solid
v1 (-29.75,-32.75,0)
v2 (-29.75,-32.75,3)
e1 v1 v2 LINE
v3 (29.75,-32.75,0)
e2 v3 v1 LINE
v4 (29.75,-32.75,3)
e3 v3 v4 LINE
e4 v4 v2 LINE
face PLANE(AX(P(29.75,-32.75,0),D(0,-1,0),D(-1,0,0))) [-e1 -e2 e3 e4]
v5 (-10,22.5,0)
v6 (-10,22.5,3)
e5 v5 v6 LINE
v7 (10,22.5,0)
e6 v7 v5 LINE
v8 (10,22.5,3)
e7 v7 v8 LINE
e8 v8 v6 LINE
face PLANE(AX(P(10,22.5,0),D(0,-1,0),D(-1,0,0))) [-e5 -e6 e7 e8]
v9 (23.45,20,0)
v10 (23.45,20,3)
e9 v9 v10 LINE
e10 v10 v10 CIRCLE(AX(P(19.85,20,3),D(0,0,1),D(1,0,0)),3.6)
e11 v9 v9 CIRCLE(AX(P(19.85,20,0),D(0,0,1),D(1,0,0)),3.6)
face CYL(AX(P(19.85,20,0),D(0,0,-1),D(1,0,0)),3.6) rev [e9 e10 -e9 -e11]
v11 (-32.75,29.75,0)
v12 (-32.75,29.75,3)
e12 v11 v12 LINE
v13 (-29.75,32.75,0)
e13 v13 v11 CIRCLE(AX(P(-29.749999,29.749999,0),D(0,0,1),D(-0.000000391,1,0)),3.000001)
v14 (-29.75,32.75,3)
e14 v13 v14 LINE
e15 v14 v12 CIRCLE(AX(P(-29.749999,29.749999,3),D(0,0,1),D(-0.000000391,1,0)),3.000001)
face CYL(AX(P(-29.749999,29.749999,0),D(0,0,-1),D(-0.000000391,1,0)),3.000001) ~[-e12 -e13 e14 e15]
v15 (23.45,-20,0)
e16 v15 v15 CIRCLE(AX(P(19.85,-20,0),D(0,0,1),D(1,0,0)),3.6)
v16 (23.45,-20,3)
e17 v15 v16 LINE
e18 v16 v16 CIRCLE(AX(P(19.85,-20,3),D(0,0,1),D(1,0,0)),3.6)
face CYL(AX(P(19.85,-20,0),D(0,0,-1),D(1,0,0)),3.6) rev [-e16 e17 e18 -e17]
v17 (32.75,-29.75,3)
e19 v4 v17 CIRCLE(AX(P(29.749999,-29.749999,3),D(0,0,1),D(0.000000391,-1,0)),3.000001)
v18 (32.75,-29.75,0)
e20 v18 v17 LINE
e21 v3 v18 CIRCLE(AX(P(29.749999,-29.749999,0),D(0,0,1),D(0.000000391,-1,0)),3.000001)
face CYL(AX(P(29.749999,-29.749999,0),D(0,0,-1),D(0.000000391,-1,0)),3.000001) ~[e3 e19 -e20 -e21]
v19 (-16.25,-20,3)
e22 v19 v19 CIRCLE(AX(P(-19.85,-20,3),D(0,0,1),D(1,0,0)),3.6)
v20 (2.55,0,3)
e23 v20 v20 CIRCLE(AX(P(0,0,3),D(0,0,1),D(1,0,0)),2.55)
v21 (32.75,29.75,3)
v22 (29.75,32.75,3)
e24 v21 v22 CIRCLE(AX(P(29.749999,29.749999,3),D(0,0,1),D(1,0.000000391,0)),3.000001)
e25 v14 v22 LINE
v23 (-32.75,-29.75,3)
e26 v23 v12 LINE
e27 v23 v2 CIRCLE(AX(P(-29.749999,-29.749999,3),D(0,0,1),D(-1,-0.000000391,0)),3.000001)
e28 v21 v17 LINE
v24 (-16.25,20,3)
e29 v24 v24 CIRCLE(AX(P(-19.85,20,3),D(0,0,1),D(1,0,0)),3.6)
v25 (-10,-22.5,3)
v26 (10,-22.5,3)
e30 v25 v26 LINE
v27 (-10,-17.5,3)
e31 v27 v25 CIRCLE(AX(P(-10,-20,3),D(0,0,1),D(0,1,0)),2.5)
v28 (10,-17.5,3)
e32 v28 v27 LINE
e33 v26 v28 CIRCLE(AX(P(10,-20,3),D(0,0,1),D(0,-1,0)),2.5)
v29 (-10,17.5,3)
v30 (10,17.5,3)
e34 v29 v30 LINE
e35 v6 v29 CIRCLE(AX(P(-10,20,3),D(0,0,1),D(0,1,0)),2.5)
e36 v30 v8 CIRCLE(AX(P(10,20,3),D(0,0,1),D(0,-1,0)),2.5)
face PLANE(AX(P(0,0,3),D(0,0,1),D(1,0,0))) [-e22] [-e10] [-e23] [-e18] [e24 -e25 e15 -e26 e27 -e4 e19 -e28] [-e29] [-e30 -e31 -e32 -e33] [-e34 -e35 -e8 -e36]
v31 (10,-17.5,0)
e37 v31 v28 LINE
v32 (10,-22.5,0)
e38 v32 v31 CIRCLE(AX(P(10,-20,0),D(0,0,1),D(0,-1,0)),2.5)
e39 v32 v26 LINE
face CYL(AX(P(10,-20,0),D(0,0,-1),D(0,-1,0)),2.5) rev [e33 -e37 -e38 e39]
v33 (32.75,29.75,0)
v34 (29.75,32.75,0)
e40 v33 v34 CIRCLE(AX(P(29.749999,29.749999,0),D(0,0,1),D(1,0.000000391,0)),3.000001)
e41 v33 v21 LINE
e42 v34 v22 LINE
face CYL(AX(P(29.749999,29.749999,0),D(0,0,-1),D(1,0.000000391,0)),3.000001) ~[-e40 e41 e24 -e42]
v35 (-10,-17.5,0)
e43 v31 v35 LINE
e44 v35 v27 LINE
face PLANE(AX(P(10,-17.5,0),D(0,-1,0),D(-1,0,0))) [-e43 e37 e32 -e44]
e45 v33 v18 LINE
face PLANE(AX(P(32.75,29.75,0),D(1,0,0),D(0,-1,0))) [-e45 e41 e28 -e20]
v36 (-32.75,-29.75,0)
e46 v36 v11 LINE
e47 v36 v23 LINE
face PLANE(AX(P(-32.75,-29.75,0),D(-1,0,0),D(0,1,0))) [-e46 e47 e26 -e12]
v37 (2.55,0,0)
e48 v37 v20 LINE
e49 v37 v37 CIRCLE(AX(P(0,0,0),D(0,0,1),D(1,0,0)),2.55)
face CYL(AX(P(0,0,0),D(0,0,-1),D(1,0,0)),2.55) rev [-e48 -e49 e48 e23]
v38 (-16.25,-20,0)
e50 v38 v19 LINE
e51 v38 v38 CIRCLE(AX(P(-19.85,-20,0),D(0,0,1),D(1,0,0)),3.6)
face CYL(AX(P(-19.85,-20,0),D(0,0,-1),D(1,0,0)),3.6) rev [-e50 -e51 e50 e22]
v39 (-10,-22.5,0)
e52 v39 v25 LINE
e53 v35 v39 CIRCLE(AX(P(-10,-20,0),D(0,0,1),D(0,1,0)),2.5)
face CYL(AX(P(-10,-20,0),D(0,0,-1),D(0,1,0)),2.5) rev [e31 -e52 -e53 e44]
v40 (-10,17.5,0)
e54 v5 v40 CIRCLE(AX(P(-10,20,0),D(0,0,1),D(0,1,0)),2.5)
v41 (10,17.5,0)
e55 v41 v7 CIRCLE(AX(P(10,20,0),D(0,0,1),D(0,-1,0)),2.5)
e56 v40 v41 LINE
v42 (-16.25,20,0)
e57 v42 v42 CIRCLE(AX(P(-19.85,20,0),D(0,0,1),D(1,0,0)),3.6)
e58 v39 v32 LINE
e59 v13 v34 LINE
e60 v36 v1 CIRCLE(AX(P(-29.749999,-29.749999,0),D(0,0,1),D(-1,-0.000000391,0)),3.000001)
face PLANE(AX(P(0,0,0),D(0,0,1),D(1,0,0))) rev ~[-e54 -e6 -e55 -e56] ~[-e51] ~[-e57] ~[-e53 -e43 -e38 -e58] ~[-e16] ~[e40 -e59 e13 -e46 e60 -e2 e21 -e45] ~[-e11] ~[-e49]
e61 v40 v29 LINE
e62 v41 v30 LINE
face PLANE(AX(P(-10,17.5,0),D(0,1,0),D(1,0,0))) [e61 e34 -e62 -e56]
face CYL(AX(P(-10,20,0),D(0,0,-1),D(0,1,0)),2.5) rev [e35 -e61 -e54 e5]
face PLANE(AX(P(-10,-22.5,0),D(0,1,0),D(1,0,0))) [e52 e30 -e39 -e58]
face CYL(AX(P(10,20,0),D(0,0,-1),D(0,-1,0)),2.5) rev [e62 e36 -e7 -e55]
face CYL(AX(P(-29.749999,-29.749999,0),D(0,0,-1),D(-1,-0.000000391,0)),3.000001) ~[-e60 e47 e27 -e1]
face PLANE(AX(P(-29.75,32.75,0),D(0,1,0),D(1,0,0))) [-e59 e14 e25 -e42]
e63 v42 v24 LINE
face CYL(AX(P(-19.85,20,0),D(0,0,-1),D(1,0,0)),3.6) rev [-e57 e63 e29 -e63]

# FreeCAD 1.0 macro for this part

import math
import FreeCAD as App
import Part
import Sketcher

V = App.Vector

doc = App.newDocument("Part")
params = doc.addObject("Spreadsheet::Sheet", "Params")
for row, (alias, value) in enumerate([
    ("sketch1_radius", "3.000001 mm"),
    ("sketch1_diameter", "7.2 mm"),
    ("sketch1_diameter2", "5.1 mm"),
    ("sketch1_radius2", "2.5 mm"),
    ("sketch1_width", "20 mm"),
    ("pad1_length", "3 mm"),
], start=1):
    params.set(f"A{row}", alias)
    params.set(f"B{row}", "=" + value)
    params.setAlias(f"B{row}", alias)

body = doc.addObject("PartDesign::Body", "Body")

sketch1 = body.newObject("Sketcher::SketchObject", "Sketch")
sketch1.AttachmentSupport = (doc.getObject("XY_Plane"), [""])
sketch1.MapMode = "FlatFace"
sketch1.addGeometry([
    Part.ArcOfCircle(Part.Circle(V(-29.7, 29.7, 0), V(0, 0, 1), 3), math.radians(90), math.radians(180)),
    Part.LineSegment(V(-32.8, 29.8, 0), V(-32.8, -29.8, 0)),
    Part.ArcOfCircle(Part.Circle(V(-29.7, -29.7, 0), V(0, 0, 1), 3), math.radians(-180), math.radians(-90)),
    Part.LineSegment(V(-29.8, -32.8, 0), V(29.8, -32.8, 0)),
    Part.ArcOfCircle(Part.Circle(V(29.7, -29.7, 0), V(0, 0, 1), 3), math.radians(-90), math.radians(0)),
    Part.LineSegment(V(32.8, -29.8, 0), V(32.8, 29.8, 0)),
    Part.ArcOfCircle(Part.Circle(V(29.7, 29.7, 0), V(0, 0, 1), 3), math.radians(0), math.radians(90)),
    Part.LineSegment(V(29.8, 32.8, 0), V(-29.8, 32.8, 0)),
    Part.Circle(V(-19.9, -20, 0), V(0, 0, 1), 3.6),
    Part.ArcOfCircle(Part.Circle(V(-10, -20, 0), V(0, 0, 1), 2.5), math.radians(90), math.radians(270)),
    Part.LineSegment(V(-10, -17.5, 0), V(10, -17.5, 0)),
    Part.ArcOfCircle(Part.Circle(V(10, -20, 0), V(0, 0, 1), 2.5), math.radians(-90), math.radians(90)),
    Part.LineSegment(V(10, -22.5, 0), V(-10, -22.5, 0)),
    Part.Circle(V(19.9, -20, 0), V(0, 0, 1), 3.6),
    Part.Circle(V(0, 0, 0), V(0, 0, 1), 2.5),
    Part.Circle(V(-19.9, 20, 0), V(0, 0, 1), 3.6),
    Part.ArcOfCircle(Part.Circle(V(-10, 20, 0), V(0, 0, 1), 2.5), math.radians(90), math.radians(270)),
    Part.LineSegment(V(-10, 22.5, 0), V(10, 22.5, 0)),
    Part.ArcOfCircle(Part.Circle(V(10, 20, 0), V(0, 0, 1), 2.5), math.radians(-90), math.radians(90)),
    Part.LineSegment(V(10, 17.5, 0), V(-10, 17.5, 0)),
    Part.Circle(V(19.9, 20, 0), V(0, 0, 1), 3.6),
], False)
sketch1.addConstraint([
    Sketcher.Constraint("Tangent", 0, 2, 1, 1),
    Sketcher.Constraint("Tangent", 1, 2, 2, 1),
    Sketcher.Constraint("Tangent", 2, 2, 3, 1),
    Sketcher.Constraint("Tangent", 3, 2, 4, 1),
    Sketcher.Constraint("Tangent", 4, 2, 5, 1),
    Sketcher.Constraint("Tangent", 5, 2, 6, 1),
    Sketcher.Constraint("Tangent", 6, 2, 7, 1),
    Sketcher.Constraint("Tangent", 7, 2, 0, 1),
    Sketcher.Constraint("Tangent", 9, 1, 10, 1),
    Sketcher.Constraint("Tangent", 10, 2, 11, 2),
    Sketcher.Constraint("Tangent", 11, 1, 12, 1),
    Sketcher.Constraint("Tangent", 12, 2, 9, 2),
    Sketcher.Constraint("Tangent", 16, 1, 17, 1),
    Sketcher.Constraint("Tangent", 17, 2, 18, 2),
    Sketcher.Constraint("Tangent", 18, 1, 19, 1),
    Sketcher.Constraint("Tangent", 19, 2, 16, 2),
    Sketcher.Constraint("Vertical", 1),
    Sketcher.Constraint("Horizontal", 3),
    Sketcher.Constraint("Vertical", 5),
    Sketcher.Constraint("Horizontal", 7),
    Sketcher.Constraint("Horizontal", 10),
    Sketcher.Constraint("Horizontal", 12),
    Sketcher.Constraint("Horizontal", 17),
    Sketcher.Constraint("Horizontal", 19),
    Sketcher.Constraint("Coincident", 14, 3, -1, 1),
    Sketcher.Constraint("Equal", 0, 2),
    Sketcher.Constraint("Equal", 2, 4),
    Sketcher.Constraint("Equal", 4, 6),
    Sketcher.Constraint("Equal", 8, 13),
    Sketcher.Constraint("Equal", 13, 15),
    Sketcher.Constraint("Equal", 11, 16),
    Sketcher.Constraint("Equal", 15, 20),
    Sketcher.Constraint("Symmetric", 0, 3, 4, 3, -1, 1),
    Sketcher.Constraint("Symmetric", 13, 3, 15, 3, -1, 1),
    Sketcher.Constraint("Symmetric", 11, 3, 16, 3, -1, 1),
    Sketcher.Constraint("Symmetric", 8, 3, 20, 3, -1, 1),
    Sketcher.Constraint("Symmetric", 8, 3, 13, 3, -2),
    Sketcher.Constraint("Horizontal", 8, 3, 9, 3),
    Sketcher.Constraint("Vertical", 9, 3, 16, 3),
    Sketcher.Constraint("Vertical", 11, 3, 18, 3),
    Sketcher.Constraint("Equal", 7, 1),
    Sketcher.Constraint("Radius", 0, 3.000001),
    Sketcher.Constraint("Diameter", 8, 7.2),
    Sketcher.Constraint("Diameter", 14, 5.1),
    Sketcher.Constraint("Radius", 9, 2.5),
    Sketcher.Constraint("DistanceX", 10, 1, 10, 2, 20.0),
    Sketcher.Constraint("DistanceX", 3, 1, 3, 2, 59.5),
    Sketcher.Constraint("DistanceY", 8, 3, -1, 1, 20.0),
    Sketcher.Constraint("DistanceX", 2, 3, 8, 3, 9.899999),
])
sketch1.setExpression("Constraints[41]", "Params.sketch1_radius")
sketch1.setExpression("Constraints[42]", "Params.sketch1_diameter")
sketch1.setExpression("Constraints[43]", "Params.sketch1_diameter2")
sketch1.setExpression("Constraints[44]", "Params.sketch1_radius2")
sketch1.setExpression("Constraints[45]", "Params.sketch1_width")
pad1 = body.newObject("PartDesign::Pad", "Pad")
pad1.Profile = sketch1
pad1.setExpression("Length", "Params.pad1_length")

doc.recompute()
